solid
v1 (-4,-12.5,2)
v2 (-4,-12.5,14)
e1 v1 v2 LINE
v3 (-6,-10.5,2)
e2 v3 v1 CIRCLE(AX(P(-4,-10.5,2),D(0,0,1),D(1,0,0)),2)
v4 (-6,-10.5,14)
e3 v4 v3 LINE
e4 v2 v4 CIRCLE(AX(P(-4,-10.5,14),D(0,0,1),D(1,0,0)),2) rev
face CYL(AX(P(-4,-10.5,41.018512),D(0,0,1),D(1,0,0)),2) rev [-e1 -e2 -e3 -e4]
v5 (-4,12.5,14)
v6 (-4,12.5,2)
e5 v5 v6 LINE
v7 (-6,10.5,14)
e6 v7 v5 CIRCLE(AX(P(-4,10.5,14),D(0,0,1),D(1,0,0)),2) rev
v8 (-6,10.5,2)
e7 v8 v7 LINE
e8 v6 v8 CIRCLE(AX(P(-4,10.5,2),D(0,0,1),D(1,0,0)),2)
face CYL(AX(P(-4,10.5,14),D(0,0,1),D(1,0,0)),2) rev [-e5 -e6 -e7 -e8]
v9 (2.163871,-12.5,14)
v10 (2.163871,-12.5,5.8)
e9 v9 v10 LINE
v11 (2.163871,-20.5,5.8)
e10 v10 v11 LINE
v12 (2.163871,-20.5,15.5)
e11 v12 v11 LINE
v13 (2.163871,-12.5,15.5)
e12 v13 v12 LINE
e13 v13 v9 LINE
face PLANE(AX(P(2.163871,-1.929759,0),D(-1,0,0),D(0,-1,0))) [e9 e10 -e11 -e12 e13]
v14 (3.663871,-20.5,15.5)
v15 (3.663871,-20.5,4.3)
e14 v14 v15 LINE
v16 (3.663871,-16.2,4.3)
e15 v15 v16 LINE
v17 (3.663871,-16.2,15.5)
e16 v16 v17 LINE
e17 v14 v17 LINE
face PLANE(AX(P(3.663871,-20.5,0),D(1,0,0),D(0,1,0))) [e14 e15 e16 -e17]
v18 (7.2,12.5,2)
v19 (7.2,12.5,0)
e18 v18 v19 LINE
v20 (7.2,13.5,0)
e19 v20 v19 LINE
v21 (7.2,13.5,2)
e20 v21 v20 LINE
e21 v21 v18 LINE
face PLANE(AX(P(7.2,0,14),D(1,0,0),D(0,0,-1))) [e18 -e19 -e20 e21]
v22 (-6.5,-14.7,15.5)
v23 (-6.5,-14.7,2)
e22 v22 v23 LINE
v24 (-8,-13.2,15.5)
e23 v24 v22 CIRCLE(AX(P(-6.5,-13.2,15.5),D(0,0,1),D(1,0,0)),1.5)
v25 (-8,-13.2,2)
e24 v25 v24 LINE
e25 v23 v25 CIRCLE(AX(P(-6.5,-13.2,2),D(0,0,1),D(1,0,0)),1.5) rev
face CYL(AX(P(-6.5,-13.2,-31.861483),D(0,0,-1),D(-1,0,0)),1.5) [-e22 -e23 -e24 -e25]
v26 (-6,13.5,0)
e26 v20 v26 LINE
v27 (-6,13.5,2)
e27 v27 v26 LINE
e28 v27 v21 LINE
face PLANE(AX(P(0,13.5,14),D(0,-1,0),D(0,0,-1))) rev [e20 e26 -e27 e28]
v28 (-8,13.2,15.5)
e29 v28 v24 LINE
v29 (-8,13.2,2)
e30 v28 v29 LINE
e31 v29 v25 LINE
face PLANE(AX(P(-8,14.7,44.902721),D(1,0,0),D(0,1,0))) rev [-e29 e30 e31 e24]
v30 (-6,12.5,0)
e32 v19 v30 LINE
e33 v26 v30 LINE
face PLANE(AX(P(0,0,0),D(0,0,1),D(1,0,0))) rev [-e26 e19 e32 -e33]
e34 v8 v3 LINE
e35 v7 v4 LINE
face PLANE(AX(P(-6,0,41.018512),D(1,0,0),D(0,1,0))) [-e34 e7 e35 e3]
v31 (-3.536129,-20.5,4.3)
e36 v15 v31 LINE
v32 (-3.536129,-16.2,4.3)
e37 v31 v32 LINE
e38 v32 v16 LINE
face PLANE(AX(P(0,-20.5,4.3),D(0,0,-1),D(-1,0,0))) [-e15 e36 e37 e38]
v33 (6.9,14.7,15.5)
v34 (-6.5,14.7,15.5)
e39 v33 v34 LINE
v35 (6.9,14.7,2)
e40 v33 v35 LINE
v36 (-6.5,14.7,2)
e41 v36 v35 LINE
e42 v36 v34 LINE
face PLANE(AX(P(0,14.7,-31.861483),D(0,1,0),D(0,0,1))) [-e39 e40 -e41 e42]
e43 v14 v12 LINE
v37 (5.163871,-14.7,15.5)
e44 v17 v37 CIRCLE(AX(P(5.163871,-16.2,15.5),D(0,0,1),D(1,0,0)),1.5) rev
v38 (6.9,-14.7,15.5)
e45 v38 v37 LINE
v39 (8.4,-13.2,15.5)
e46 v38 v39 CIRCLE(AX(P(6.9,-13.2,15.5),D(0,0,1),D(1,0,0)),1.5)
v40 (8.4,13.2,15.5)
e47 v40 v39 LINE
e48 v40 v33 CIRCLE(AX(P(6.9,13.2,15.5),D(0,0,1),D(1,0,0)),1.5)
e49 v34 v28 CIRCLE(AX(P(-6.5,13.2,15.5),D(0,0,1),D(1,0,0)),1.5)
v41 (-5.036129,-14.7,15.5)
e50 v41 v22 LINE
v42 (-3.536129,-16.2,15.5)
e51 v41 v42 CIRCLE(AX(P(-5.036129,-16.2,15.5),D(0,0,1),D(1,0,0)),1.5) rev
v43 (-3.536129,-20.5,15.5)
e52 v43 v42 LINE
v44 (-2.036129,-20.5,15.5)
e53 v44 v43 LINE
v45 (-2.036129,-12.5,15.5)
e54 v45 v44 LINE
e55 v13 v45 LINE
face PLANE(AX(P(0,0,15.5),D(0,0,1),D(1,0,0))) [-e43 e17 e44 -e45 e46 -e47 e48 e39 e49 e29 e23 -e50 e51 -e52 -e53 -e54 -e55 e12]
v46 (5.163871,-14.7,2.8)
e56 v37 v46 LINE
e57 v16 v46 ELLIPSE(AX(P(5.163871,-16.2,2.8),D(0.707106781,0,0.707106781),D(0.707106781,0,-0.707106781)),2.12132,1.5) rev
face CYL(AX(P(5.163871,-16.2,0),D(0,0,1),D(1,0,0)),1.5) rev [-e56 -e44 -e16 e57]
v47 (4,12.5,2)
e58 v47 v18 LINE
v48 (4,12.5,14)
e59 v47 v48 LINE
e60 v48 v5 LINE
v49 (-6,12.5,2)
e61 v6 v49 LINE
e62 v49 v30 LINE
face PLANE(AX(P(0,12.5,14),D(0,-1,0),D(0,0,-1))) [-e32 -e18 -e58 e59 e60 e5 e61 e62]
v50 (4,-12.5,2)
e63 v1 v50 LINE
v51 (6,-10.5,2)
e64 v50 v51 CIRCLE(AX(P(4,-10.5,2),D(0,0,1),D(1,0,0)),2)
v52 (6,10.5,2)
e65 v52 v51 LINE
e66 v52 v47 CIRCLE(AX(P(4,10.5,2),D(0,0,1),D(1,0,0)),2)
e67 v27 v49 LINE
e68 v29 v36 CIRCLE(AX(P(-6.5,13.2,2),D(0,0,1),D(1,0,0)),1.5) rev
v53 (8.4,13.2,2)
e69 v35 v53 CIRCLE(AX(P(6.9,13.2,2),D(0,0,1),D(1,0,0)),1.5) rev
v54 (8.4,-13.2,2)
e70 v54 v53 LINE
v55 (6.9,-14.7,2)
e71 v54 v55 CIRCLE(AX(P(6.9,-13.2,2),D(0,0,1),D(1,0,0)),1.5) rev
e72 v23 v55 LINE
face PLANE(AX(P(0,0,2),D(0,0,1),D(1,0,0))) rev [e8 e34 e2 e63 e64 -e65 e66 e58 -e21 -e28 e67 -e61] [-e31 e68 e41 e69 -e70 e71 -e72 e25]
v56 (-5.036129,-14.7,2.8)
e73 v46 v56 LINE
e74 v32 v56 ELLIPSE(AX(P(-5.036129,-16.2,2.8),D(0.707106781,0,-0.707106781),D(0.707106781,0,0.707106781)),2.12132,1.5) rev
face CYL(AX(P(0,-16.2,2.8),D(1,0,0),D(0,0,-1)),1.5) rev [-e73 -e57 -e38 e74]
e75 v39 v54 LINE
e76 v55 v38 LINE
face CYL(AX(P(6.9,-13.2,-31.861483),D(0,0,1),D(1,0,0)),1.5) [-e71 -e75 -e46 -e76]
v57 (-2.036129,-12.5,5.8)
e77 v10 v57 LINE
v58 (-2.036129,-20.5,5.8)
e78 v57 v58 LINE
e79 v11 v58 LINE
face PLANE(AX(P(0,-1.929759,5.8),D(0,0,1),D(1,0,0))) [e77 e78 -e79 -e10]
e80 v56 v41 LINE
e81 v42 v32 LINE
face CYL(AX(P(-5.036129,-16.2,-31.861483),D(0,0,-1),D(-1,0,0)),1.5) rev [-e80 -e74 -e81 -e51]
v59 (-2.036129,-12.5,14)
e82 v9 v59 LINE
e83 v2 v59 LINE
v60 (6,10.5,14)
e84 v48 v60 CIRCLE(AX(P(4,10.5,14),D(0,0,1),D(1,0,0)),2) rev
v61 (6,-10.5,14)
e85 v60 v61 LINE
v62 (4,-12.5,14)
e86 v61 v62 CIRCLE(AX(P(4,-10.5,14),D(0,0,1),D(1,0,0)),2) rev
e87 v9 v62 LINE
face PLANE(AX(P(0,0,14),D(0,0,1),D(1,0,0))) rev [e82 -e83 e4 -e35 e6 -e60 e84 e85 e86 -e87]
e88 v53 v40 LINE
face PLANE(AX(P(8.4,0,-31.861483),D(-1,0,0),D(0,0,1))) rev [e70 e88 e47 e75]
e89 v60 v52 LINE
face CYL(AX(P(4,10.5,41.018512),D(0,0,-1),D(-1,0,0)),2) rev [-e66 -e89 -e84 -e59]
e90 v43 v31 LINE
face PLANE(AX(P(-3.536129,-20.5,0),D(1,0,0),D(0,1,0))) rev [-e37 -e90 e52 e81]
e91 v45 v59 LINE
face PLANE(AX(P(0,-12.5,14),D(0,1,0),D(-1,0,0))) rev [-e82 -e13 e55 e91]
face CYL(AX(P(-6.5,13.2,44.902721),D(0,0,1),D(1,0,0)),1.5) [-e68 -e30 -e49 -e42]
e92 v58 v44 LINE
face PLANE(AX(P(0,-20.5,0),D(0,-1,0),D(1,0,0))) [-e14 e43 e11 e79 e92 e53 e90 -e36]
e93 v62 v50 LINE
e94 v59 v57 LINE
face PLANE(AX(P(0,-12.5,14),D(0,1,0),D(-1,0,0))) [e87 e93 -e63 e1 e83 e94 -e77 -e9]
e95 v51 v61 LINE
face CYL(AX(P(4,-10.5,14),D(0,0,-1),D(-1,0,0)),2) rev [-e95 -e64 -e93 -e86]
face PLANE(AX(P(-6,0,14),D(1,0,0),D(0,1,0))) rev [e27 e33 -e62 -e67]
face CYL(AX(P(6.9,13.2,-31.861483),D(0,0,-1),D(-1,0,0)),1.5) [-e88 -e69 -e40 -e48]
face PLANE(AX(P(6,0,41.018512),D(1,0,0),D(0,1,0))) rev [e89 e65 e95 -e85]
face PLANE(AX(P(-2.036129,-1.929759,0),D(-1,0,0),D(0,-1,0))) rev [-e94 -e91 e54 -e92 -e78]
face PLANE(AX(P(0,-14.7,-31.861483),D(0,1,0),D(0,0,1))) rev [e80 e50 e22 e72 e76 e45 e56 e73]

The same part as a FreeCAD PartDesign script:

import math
import FreeCAD as App
import Part
import Sketcher


def edges_at(feature, points):
    """Names of the edges that pass closest to the given points."""
    edges = feature.Shape.Edges
    near = lambda p: min(range(len(edges)), key=lambda i: edges[i].distToShape(Part.Vertex(*p))[0])
    return sorted({f"Edge{near(p) + 1}" for p in points})

doc = App.newDocument("Part")
params = doc.addObject("Spreadsheet::Sheet", "Params")
for row, (alias, value) in enumerate([
    ("sketch1_height", "1 mm"),
    ("sketch1_width", "13.2 mm"),
    ("pad1_length", "14 mm"),
    ("sketch2_height", "1 mm"),
    ("sketch2_width", "13.2 mm"),
    ("pad2_length", "14 mm"),
    ("sketch3_width", "1 mm"),
    ("sketch3_height", "27 mm"),
    ("sketch3_height2", "25 mm"),
    ("sketch3_width2", "1.2 mm"),
    ("pad3_length", "12 mm"),
    ("sketch4_height", "27 mm"),
    ("sketch4_width", "14.2 mm"),
    ("pad4_length", "1.5 mm"),
    ("sketch5_width", "4.2 mm"),
    ("sketch5_height", "9.7 mm"),
    ("pocket1_length", "1 mm"),
    ("sketch6_width", "1.5 mm"),
    ("sketch6_width2", "4.2 mm"),
    ("sketch6_height", "9.7 mm"),
    ("sketch6_height2", "11.2 mm"),
    ("pad5_length", "7 mm"),
    ("fillet_radius", "2 mm"),
    ("sketch7_height", "1 mm"),
    ("sketch7_width", "13.2 mm"),
    ("pocket2_length", "2 mm"),
    ("fillet2_radius", "1 mm"),
    ("sketch8_radius", "1 mm"),
    ("sketch8_height", "27 mm"),
    ("sketch8_width", "16.8 mm"),
    ("sketch8_width2", "14.2 mm"),
    ("sketch8_height2", "29.4 mm"),
    ("pad6_length", "13.5 mm"),
    ("pad7_length", "2.3 mm"),
    ("fillet3_radius", "1.5 mm"),
    ("sketch10_width", "0.4 mm"),
    ("sketch10_height", "29.4 mm"),
    ("pocket3_length", "13.5 mm"),
    ("fillet4_radius", "1.5 mm"),
], start=1):
    params.set(f"A{row}", alias)
    params.set(f"B{row}", "=" + value)
    params.setAlias(f"B{row}", alias)

body = doc.addObject("PartDesign::Body", "Body")

sketch1 = doc.addObject("Sketcher::SketchObject", "Sketch")
body.addObject(sketch1)
sketch1.AttachmentSupport = (doc.XY_Plane, [""])
sketch1.MapMode = "FlatFace"
sketch1.addGeometry(Part.LineSegment(App.Vector(7.2, 13.5, 0), App.Vector(-6, 13.5, 0)), False)
sketch1.addGeometry(Part.LineSegment(App.Vector(-6, 13.5, 0), App.Vector(-6, 12.5, 0)), False)
sketch1.addGeometry(Part.LineSegment(App.Vector(-6, 12.5, 0), App.Vector(7.2, 12.5, 0)), False)
sketch1.addGeometry(Part.LineSegment(App.Vector(7.2, 12.5, 0), App.Vector(7.2, 13.5, 0)), False)
sketch1.addConstraint(Sketcher.Constraint("Coincident", 0, 2, 1, 1))
sketch1.addConstraint(Sketcher.Constraint("Coincident", 1, 2, 2, 1))
sketch1.addConstraint(Sketcher.Constraint("Coincident", 2, 2, 3, 1))
sketch1.addConstraint(Sketcher.Constraint("Coincident", 3, 2, 0, 1))
sketch1.addConstraint(Sketcher.Constraint("Horizontal", 0))
sketch1.addConstraint(Sketcher.Constraint("Vertical", 1))
sketch1.addConstraint(Sketcher.Constraint("Horizontal", 2))
sketch1.addConstraint(Sketcher.Constraint("Vertical", 3))
sketch1.addConstraint(Sketcher.Constraint("DistanceY", 1, 2, 1, 1, 1.0))
sketch1.addConstraint(Sketcher.Constraint("DistanceX", 0, 2, 0, 1, 13.2))
sketch1.addConstraint(Sketcher.Constraint("DistanceX", 0, 2, -1, 1, 6.0))
sketch1.addConstraint(Sketcher.Constraint("DistanceY", -1, 1, 0, 2, 13.5))
sketch1.setExpression("Constraints[8]", "Params.sketch1_height")
sketch1.setExpression("Constraints[9]", "Params.sketch1_width")
pad1 = doc.addObject("PartDesign::Pad", "Pad")
body.addObject(pad1)
pad1.Profile = sketch1
pad1.setExpression("Length", "Params.pad1_length")
body2 = doc.addObject("PartDesign::Body", "Body001")

sketch2 = doc.addObject("Sketcher::SketchObject", "Sketch001")
body2.addObject(sketch2)
sketch2.AttachmentSupport = (doc.getObject("XY_Plane001"), [""])
sketch2.MapMode = "FlatFace"
sketch2.addGeometry(Part.LineSegment(App.Vector(-6, -12.5, 0), App.Vector(-6, -13.5, 0)), False)
sketch2.addGeometry(Part.LineSegment(App.Vector(-6, -13.5, 0), App.Vector(7.2, -13.5, 0)), False)
sketch2.addGeometry(Part.LineSegment(App.Vector(7.2, -13.5, 0), App.Vector(7.2, -12.5, 0)), False)
sketch2.addGeometry(Part.LineSegment(App.Vector(7.2, -12.5, 0), App.Vector(-6, -12.5, 0)), False)
sketch2.addConstraint(Sketcher.Constraint("Coincident", 0, 2, 1, 1))
sketch2.addConstraint(Sketcher.Constraint("Coincident", 1, 2, 2, 1))
sketch2.addConstraint(Sketcher.Constraint("Coincident", 2, 2, 3, 1))
sketch2.addConstraint(Sketcher.Constraint("Coincident", 3, 2, 0, 1))
sketch2.addConstraint(Sketcher.Constraint("Vertical", 0))
sketch2.addConstraint(Sketcher.Constraint("Horizontal", 1))
sketch2.addConstraint(Sketcher.Constraint("Vertical", 2))
sketch2.addConstraint(Sketcher.Constraint("Horizontal", 3))
sketch2.addConstraint(Sketcher.Constraint("DistanceY", 0, 2, 0, 1, 1.0))
sketch2.addConstraint(Sketcher.Constraint("DistanceX", 1, 1, 1, 2, 13.2))
sketch2.addConstraint(Sketcher.Constraint("DistanceX", 0, 2, -1, 1, 6.0))
sketch2.addConstraint(Sketcher.Constraint("DistanceY", 0, 2, -1, 1, 13.5))
sketch2.setExpression("Constraints[8]", "Params.sketch2_height")
sketch2.setExpression("Constraints[9]", "Params.sketch2_width")
pad2 = doc.addObject("PartDesign::Pad", "Pad001")
body2.addObject(pad2)
pad2.Profile = sketch2
pad2.setExpression("Length", "Params.pad2_length")
body.AllowCompound = True
doc.recompute()

boolean = doc.addObject("PartDesign::Boolean", "Boolean")
body.addObject(boolean)
boolean.Type = "Fuse"
boolean.addObjects([body2])

sketch3 = doc.addObject("Sketcher::SketchObject", "Sketch002")
body.addObject(sketch3)
sketch3.AttachmentSupport = (doc.XY_Plane, [""])
sketch3.MapMode = "FlatFace"
sketch3.AttachmentOffset = App.Placement(App.Vector(0, 0, 2), App.Rotation())
sketch3.addGeometry(Part.LineSegment(App.Vector(-6, 13.5, 0), App.Vector(-7, 13.5, 0)), False)
sketch3.addGeometry(Part.LineSegment(App.Vector(-7, 13.5, 0), App.Vector(-7, -13.5, 0)), False)
sketch3.addGeometry(Part.LineSegment(App.Vector(-7, -13.5, 0), App.Vector(-6, -13.5, 0)), False)
sketch3.addGeometry(Part.LineSegment(App.Vector(-6, -13.5, 0), App.Vector(-6, 13.5, 0)), False)
sketch3.addGeometry(Part.LineSegment(App.Vector(6, 12.5, 0), App.Vector(6, -12.5, 0)), False)
sketch3.addGeometry(Part.LineSegment(App.Vector(6, -12.5, 0), App.Vector(7.2, -12.5, 0)), False)
sketch3.addGeometry(Part.LineSegment(App.Vector(7.2, -12.5, 0), App.Vector(7.2, 12.5, 0)), False)
sketch3.addGeometry(Part.LineSegment(App.Vector(7.2, 12.5, 0), App.Vector(6, 12.5, 0)), False)
sketch3.addConstraint(Sketcher.Constraint("Coincident", 0, 2, 1, 1))
sketch3.addConstraint(Sketcher.Constraint("Coincident", 1, 2, 2, 1))
sketch3.addConstraint(Sketcher.Constraint("Coincident", 2, 2, 3, 1))
sketch3.addConstraint(Sketcher.Constraint("Coincident", 3, 2, 0, 1))
sketch3.addConstraint(Sketcher.Constraint("Coincident", 4, 2, 5, 1))
sketch3.addConstraint(Sketcher.Constraint("Coincident", 5, 2, 6, 1))
sketch3.addConstraint(Sketcher.Constraint("Coincident", 6, 2, 7, 1))
sketch3.addConstraint(Sketcher.Constraint("Coincident", 7, 2, 4, 1))
sketch3.addConstraint(Sketcher.Constraint("Horizontal", 0))
sketch3.addConstraint(Sketcher.Constraint("Vertical", 1))
sketch3.addConstraint(Sketcher.Constraint("Horizontal", 2))
sketch3.addConstraint(Sketcher.Constraint("Vertical", 3))
sketch3.addConstraint(Sketcher.Constraint("Vertical", 4))
sketch3.addConstraint(Sketcher.Constraint("Horizontal", 5))
sketch3.addConstraint(Sketcher.Constraint("Vertical", 6))
sketch3.addConstraint(Sketcher.Constraint("Horizontal", 7))
sketch3.addConstraint(Sketcher.Constraint("DistanceX", 0, 2, 0, 1, 1.0))
sketch3.addConstraint(Sketcher.Constraint("DistanceY", 1, 2, 1, 1, 27.0))
sketch3.addConstraint(Sketcher.Constraint("DistanceY", 4, 2, 4, 1, 25.0))
sketch3.addConstraint(Sketcher.Constraint("DistanceX", 5, 1, 5, 2, 1.2))
sketch3.addConstraint(Sketcher.Constraint("DistanceX", 0, 2, -1, 1, 7.0))
sketch3.addConstraint(Sketcher.Constraint("DistanceX", -1, 1, 4, 2, 6.0))
sketch3.addConstraint(Sketcher.Constraint("DistanceY", 2, 2, 4, 2, 1.0))
sketch3.addConstraint(Sketcher.Constraint("DistanceY", -1, 1, 0, 2, 13.5))
sketch3.setExpression("Constraints[16]", "Params.sketch3_width")
sketch3.setExpression("Constraints[17]", "Params.sketch3_height")
sketch3.setExpression("Constraints[18]", "Params.sketch3_height2")
sketch3.setExpression("Constraints[19]", "Params.sketch3_width2")
pad3 = doc.addObject("PartDesign::Pad", "Pad002")
body.addObject(pad3)
pad3.Profile = sketch3
pad3.setExpression("Length", "Params.pad3_length")

sketch4 = doc.addObject("Sketcher::SketchObject", "Sketch003")
body.addObject(sketch4)
sketch4.AttachmentSupport = (doc.XY_Plane, [""])
sketch4.MapMode = "FlatFace"
sketch4.AttachmentOffset = App.Placement(App.Vector(0, 0, 14), App.Rotation())
sketch4.addGeometry(Part.LineSegment(App.Vector(-7, 14, 0), App.Vector(-7, -14, 0)), False)
sketch4.addGeometry(Part.LineSegment(App.Vector(-7, -14, 0), App.Vector(7, -14, 0)), False)
sketch4.addGeometry(Part.LineSegment(App.Vector(7, -14, 0), App.Vector(7, 14, 0)), False)
sketch4.addGeometry(Part.LineSegment(App.Vector(7, 14, 0), App.Vector(-7, 14, 0)), False)
sketch4.addConstraint(Sketcher.Constraint("Coincident", 0, 2, 1, 1))
sketch4.addConstraint(Sketcher.Constraint("Coincident", 1, 2, 2, 1))
sketch4.addConstraint(Sketcher.Constraint("Coincident", 2, 2, 3, 1))
sketch4.addConstraint(Sketcher.Constraint("Coincident", 3, 2, 0, 1))
sketch4.addConstraint(Sketcher.Constraint("Vertical", 0))
sketch4.addConstraint(Sketcher.Constraint("Horizontal", 1))
sketch4.addConstraint(Sketcher.Constraint("Vertical", 2))
sketch4.addConstraint(Sketcher.Constraint("Horizontal", 3))
sketch4.addConstraint(Sketcher.Constraint("DistanceY", 0, 2, 0, 1, 27.0))
sketch4.addConstraint(Sketcher.Constraint("DistanceX", 1, 1, 1, 2, 14.2))
sketch4.addConstraint(Sketcher.Constraint("DistanceX", 0, 2, -1, 1, 7.0))
sketch4.addConstraint(Sketcher.Constraint("DistanceY", 0, 2, -1, 1, 13.5))
sketch4.setExpression("Constraints[8]", "Params.sketch4_height")
sketch4.setExpression("Constraints[9]", "Params.sketch4_width")
pad4 = doc.addObject("PartDesign::Pad", "Pad003")
body.addObject(pad4)
pad4.Profile = sketch4
pad4.setExpression("Length", "Params.pad4_length")

sketch5 = doc.addObject("Sketcher::SketchObject", "Sketch004")
body.addObject(sketch5)
sketch5.AttachmentSupport = (doc.XZ_Plane, [""])
sketch5.MapMode = "FlatFace"
sketch5.AttachmentOffset = App.Placement(App.Vector(0, 0, 13.5), App.Rotation())
sketch5.addGeometry(Part.LineSegment(App.Vector(-2, 5.8, 0), App.Vector(2.2, 5.8, 0)), False)
sketch5.addGeometry(Part.LineSegment(App.Vector(2.2, 5.8, 0), App.Vector(2.2, 15.5, 0)), False)
sketch5.addGeometry(Part.LineSegment(App.Vector(2.2, 15.5, 0), App.Vector(-2, 15.5, 0)), False)
sketch5.addGeometry(Part.LineSegment(App.Vector(-2, 15.5, 0), App.Vector(-2, 5.8, 0)), False)
sketch5.addConstraint(Sketcher.Constraint("Coincident", 0, 2, 1, 1))
sketch5.addConstraint(Sketcher.Constraint("Coincident", 1, 2, 2, 1))
sketch5.addConstraint(Sketcher.Constraint("Coincident", 2, 2, 3, 1))
sketch5.addConstraint(Sketcher.Constraint("Coincident", 3, 2, 0, 1))
sketch5.addConstraint(Sketcher.Constraint("Horizontal", 0))
sketch5.addConstraint(Sketcher.Constraint("Vertical", 1))
sketch5.addConstraint(Sketcher.Constraint("Horizontal", 2))
sketch5.addConstraint(Sketcher.Constraint("Vertical", 3))
sketch5.addConstraint(Sketcher.Constraint("DistanceX", 0, 1, 0, 2, 4.2))
sketch5.addConstraint(Sketcher.Constraint("DistanceY", 1, 1, 1, 2, 9.7))
sketch5.addConstraint(Sketcher.Constraint("DistanceY", -1, 1, 0, 2, 5.8))
sketch5.addConstraint(Sketcher.Constraint("DistanceX", -1, 1, 0, 2, 2.163871))
sketch5.setExpression("Constraints[8]", "Params.sketch5_width")
sketch5.setExpression("Constraints[9]", "Params.sketch5_height")
pocket1 = doc.addObject("PartDesign::Pocket", "Pocket")
body.addObject(pocket1)
pocket1.Profile = sketch5
pocket1.setExpression("Length", "Params.pocket1_length")

sketch6 = doc.addObject("Sketcher::SketchObject", "Sketch005")
body.addObject(sketch6)
sketch6.AttachmentSupport = (doc.XZ_Plane, [""])
sketch6.MapMode = "FlatFace"
sketch6.AttachmentOffset = App.Placement(App.Vector(0, 0, 13.5), App.Rotation())
sketch6.addGeometry(Part.LineSegment(App.Vector(3.7, 15.5, 0), App.Vector(2.2, 15.5, 0)), False)
sketch6.addGeometry(Part.LineSegment(App.Vector(2.2, 15.5, 0), App.Vector(2.2, 5.8, 0)), False)
sketch6.addGeometry(Part.LineSegment(App.Vector(2.2, 5.8, 0), App.Vector(-2, 5.8, 0)), False)
sketch6.addGeometry(Part.LineSegment(App.Vector(-2, 5.8, 0), App.Vector(-2, 15.5, 0)), False)
sketch6.addGeometry(Part.LineSegment(App.Vector(-2, 15.5, 0), App.Vector(-3.5, 15.5, 0)), False)
sketch6.addGeometry(Part.LineSegment(App.Vector(-3.5, 15.5, 0), App.Vector(-3.5, 4.3, 0)), False)
sketch6.addGeometry(Part.LineSegment(App.Vector(-3.5, 4.3, 0), App.Vector(3.7, 4.3, 0)), False)
sketch6.addGeometry(Part.LineSegment(App.Vector(3.7, 4.3, 0), App.Vector(3.7, 15.5, 0)), False)
sketch6.addConstraint(Sketcher.Constraint("Coincident", 0, 2, 1, 1))
sketch6.addConstraint(Sketcher.Constraint("Coincident", 1, 2, 2, 1))
sketch6.addConstraint(Sketcher.Constraint("Coincident", 2, 2, 3, 1))
sketch6.addConstraint(Sketcher.Constraint("Coincident", 3, 2, 4, 1))
sketch6.addConstraint(Sketcher.Constraint("Coincident", 4, 2, 5, 1))
sketch6.addConstraint(Sketcher.Constraint("Coincident", 5, 2, 6, 1))
sketch6.addConstraint(Sketcher.Constraint("Coincident", 6, 2, 7, 1))
sketch6.addConstraint(Sketcher.Constraint("Coincident", 7, 2, 0, 1))
sketch6.addConstraint(Sketcher.Constraint("Horizontal", 0))
sketch6.addConstraint(Sketcher.Constraint("Vertical", 1))
sketch6.addConstraint(Sketcher.Constraint("Horizontal", 2))
sketch6.addConstraint(Sketcher.Constraint("Vertical", 3))
sketch6.addConstraint(Sketcher.Constraint("Horizontal", 4))
sketch6.addConstraint(Sketcher.Constraint("Vertical", 5))
sketch6.addConstraint(Sketcher.Constraint("Horizontal", 6))
sketch6.addConstraint(Sketcher.Constraint("Vertical", 7))
sketch6.addConstraint(Sketcher.Constraint("Horizontal", 0, 2, 3, 2))
sketch6.addConstraint(Sketcher.Constraint("Equal", 0, 4))
sketch6.addConstraint(Sketcher.Constraint("DistanceX", 0, 2, 0, 1, 1.5))
sketch6.addConstraint(Sketcher.Constraint("DistanceX", 2, 2, 2, 1, 4.2))
sketch6.addConstraint(Sketcher.Constraint("DistanceY", 1, 2, 1, 1, 9.7))
sketch6.addConstraint(Sketcher.Constraint("DistanceY", 5, 2, 5, 1, 11.2))
sketch6.addConstraint(Sketcher.Constraint("DistanceY", -1, 1, 0, 2, 15.5))
sketch6.addConstraint(Sketcher.Constraint("DistanceX", -1, 1, 0, 2, 2.163871))
sketch6.setExpression("Constraints[18]", "Params.sketch6_width")
sketch6.setExpression("Constraints[19]", "Params.sketch6_width2")
sketch6.setExpression("Constraints[20]", "Params.sketch6_height")
sketch6.setExpression("Constraints[21]", "Params.sketch6_height2")
pad5 = doc.addObject("PartDesign::Pad", "Pad004")
body.addObject(pad5)
pad5.Profile = sketch6
pad5.setExpression("Length", "Params.pad5_length")
doc.recompute()

fillet = doc.addObject("PartDesign::Fillet", "Fillet")
body.addObject(fillet)
fillet.Base = (pad5, edges_at(pad5, [
    (-6, -12.5, 8),
    (6, -12.5, 8),
    (6, 12.5, 8),
    (-6, 12.5, 8),
]))
fillet.setExpression("Radius", "Params.fillet_radius")

sketch7 = doc.addObject("Sketcher::SketchObject", "Sketch006")
body.addObject(sketch7)
sketch7.AttachmentSupport = (doc.XY_Plane, [""])
sketch7.MapMode = "FlatFace"
sketch7.AttachmentOffset = App.Placement(App.Vector(0, 0, 2), App.Rotation())
sketch7.addGeometry(Part.LineSegment(App.Vector(7.2, -12.5, 0), App.Vector(7.2, -13.5, 0)), False)
sketch7.addGeometry(Part.LineSegment(App.Vector(7.2, -13.5, 0), App.Vector(-6, -13.5, 0)), False)
sketch7.addGeometry(Part.LineSegment(App.Vector(-6, -13.5, 0), App.Vector(-6, -12.5, 0)), False)
sketch7.addGeometry(Part.LineSegment(App.Vector(-6, -12.5, 0), App.Vector(7.2, -12.5, 0)), False)
sketch7.addConstraint(Sketcher.Constraint("Coincident", 0, 2, 1, 1))
sketch7.addConstraint(Sketcher.Constraint("Coincident", 1, 2, 2, 1))
sketch7.addConstraint(Sketcher.Constraint("Coincident", 2, 2, 3, 1))
sketch7.addConstraint(Sketcher.Constraint("Coincident", 3, 2, 0, 1))
sketch7.addConstraint(Sketcher.Constraint("Vertical", 0))
sketch7.addConstraint(Sketcher.Constraint("Horizontal", 1))
sketch7.addConstraint(Sketcher.Constraint("Vertical", 2))
sketch7.addConstraint(Sketcher.Constraint("Horizontal", 3))
sketch7.addConstraint(Sketcher.Constraint("DistanceY", 0, 2, 0, 1, 1.0))
sketch7.addConstraint(Sketcher.Constraint("DistanceX", 1, 2, 1, 1, 13.2))
sketch7.addConstraint(Sketcher.Constraint("DistanceX", 1, 2, -1, 1, 6.0))
sketch7.addConstraint(Sketcher.Constraint("DistanceY", 0, 2, -1, 1, 13.5))
sketch7.setExpression("Constraints[8]", "Params.sketch7_height")
sketch7.setExpression("Constraints[9]", "Params.sketch7_width")
pocket2 = doc.addObject("PartDesign::Pocket", "Pocket001")
body.addObject(pocket2)
pocket2.Profile = sketch7
pocket2.setExpression("Length", "Params.pocket2_length")
doc.recompute()

fillet2 = doc.addObject("PartDesign::Fillet", "Fillet001")
body.addObject(fillet2)
fillet2.Base = (pocket2, edges_at(pocket2, [(3.664, -13.5, 9.9), (0.064, -13.5, 4.3), (-3.536, -13.5, 9.9)]))
fillet2.setExpression("Radius", "Params.fillet2_radius")

sketch8 = doc.addObject("Sketcher::SketchObject", "Sketch007")
body.addObject(sketch8)
sketch8.AttachmentSupport = (doc.XY_Plane, [""])
sketch8.MapMode = "FlatFace"
sketch8.AttachmentOffset = App.Placement(App.Vector(0, 0, 2), App.Rotation())
sketch8.addGeometry(Part.LineSegment(App.Vector(8.4, -14.7, 0), App.Vector(8.4, 14.7, 0)), False)
sketch8.addGeometry(Part.LineSegment(App.Vector(8.4, 14.7, 0), App.Vector(-8.4, 14.7, 0)), False)
sketch8.addGeometry(Part.LineSegment(App.Vector(-8.4, 14.7, 0), App.Vector(-8.4, -14.7, 0)), False)
sketch8.addGeometry(Part.LineSegment(App.Vector(-8.4, -14.7, 0), App.Vector(-3.54, -14.7, 0)), False)
sketch8.addGeometry(Part.LineSegment(App.Vector(-3.54, -14.7, 0), App.Vector(-3.54, -14.5, 0)), False)
sketch8.addGeometry(Part.ArcOfCircle(Part.Circle(App.Vector(-4.54, -14.5, 0), App.Vector(0, 0, 1), 1), math.radians(0), math.radians(90)), False)
sketch8.addGeometry(Part.LineSegment(App.Vector(-4.54, -13.5, 0), App.Vector(-7, -13.5, 0)), False)
sketch8.addGeometry(Part.LineSegment(App.Vector(-7, -13.5, 0), App.Vector(-7, 13.5, 0)), False)
sketch8.addGeometry(Part.LineSegment(App.Vector(-7, 13.5, 0), App.Vector(7.2, 13.5, 0)), False)
sketch8.addGeometry(Part.LineSegment(App.Vector(7.2, 13.5, 0), App.Vector(7.2, -13.5, 0)), False)
sketch8.addGeometry(Part.LineSegment(App.Vector(7.2, -13.5, 0), App.Vector(4.66, -13.5, 0)), False)
sketch8.addGeometry(Part.ArcOfCircle(Part.Circle(App.Vector(4.66, -14.5, 0), App.Vector(0, 0, 1), 1), math.radians(90), math.radians(180)), False)
sketch8.addGeometry(Part.LineSegment(App.Vector(3.66, -14.5, 0), App.Vector(3.66, -14.7, 0)), False)
sketch8.addGeometry(Part.LineSegment(App.Vector(3.66, -14.7, 0), App.Vector(8.4, -14.7, 0)), False)
sketch8.addConstraint(Sketcher.Constraint("Coincident", 0, 2, 1, 1))
sketch8.addConstraint(Sketcher.Constraint("Coincident", 1, 2, 2, 1))
sketch8.addConstraint(Sketcher.Constraint("Coincident", 2, 2, 3, 1))
sketch8.addConstraint(Sketcher.Constraint("Coincident", 3, 2, 4, 1))
sketch8.addConstraint(Sketcher.Constraint("Tangent", 4, 2, 5, 1))
sketch8.addConstraint(Sketcher.Constraint("Tangent", 5, 2, 6, 1))
sketch8.addConstraint(Sketcher.Constraint("Coincident", 6, 2, 7, 1))
sketch8.addConstraint(Sketcher.Constraint("Coincident", 7, 2, 8, 1))
sketch8.addConstraint(Sketcher.Constraint("Coincident", 8, 2, 9, 1))
sketch8.addConstraint(Sketcher.Constraint("Coincident", 9, 2, 10, 1))
sketch8.addConstraint(Sketcher.Constraint("Tangent", 10, 2, 11, 1))
sketch8.addConstraint(Sketcher.Constraint("Tangent", 11, 2, 12, 1))
sketch8.addConstraint(Sketcher.Constraint("Coincident", 12, 2, 13, 1))
sketch8.addConstraint(Sketcher.Constraint("Coincident", 13, 2, 0, 1))
sketch8.addConstraint(Sketcher.Constraint("Vertical", 0))
sketch8.addConstraint(Sketcher.Constraint("Horizontal", 1))
sketch8.addConstraint(Sketcher.Constraint("Vertical", 2))
sketch8.addConstraint(Sketcher.Constraint("Horizontal", 3))
sketch8.addConstraint(Sketcher.Constraint("Vertical", 4))
sketch8.addConstraint(Sketcher.Constraint("Horizontal", 6))
sketch8.addConstraint(Sketcher.Constraint("Vertical", 7))
sketch8.addConstraint(Sketcher.Constraint("Horizontal", 8))
sketch8.addConstraint(Sketcher.Constraint("Vertical", 9))
sketch8.addConstraint(Sketcher.Constraint("Horizontal", 10))
sketch8.addConstraint(Sketcher.Constraint("Vertical", 12))
sketch8.addConstraint(Sketcher.Constraint("Horizontal", 13))
sketch8.addConstraint(Sketcher.Constraint("Equal", 5, 11))
sketch8.addConstraint(Sketcher.Constraint("Symmetric", 0, 2, 2, 2, -1, 1))
sketch8.addConstraint(Sketcher.Constraint("Horizontal", 5, 3, 11, 3))
sketch8.addConstraint(Sketcher.Constraint("Horizontal", 3, 2, 12, 2))
sketch8.addConstraint(Sketcher.Constraint("Radius", 5, 1.0))
sketch8.addConstraint(Sketcher.Constraint("DistanceY", 7, 1, 7, 2, 27.0))
sketch8.addConstraint(Sketcher.Constraint("DistanceX", 1, 2, 1, 1, 16.8))
sketch8.addConstraint(Sketcher.Constraint("DistanceX", 8, 1, 8, 2, 14.2))
sketch8.addConstraint(Sketcher.Constraint("DistanceY", 0, 1, 0, 2, 29.4))
sketch8.addConstraint(Sketcher.Constraint("DistanceY", 4, 1, 4, 2, 0.2))
sketch8.addConstraint(Sketcher.Constraint("DistanceX", 6, 2, -1, 1, 7.0))
sketch8.addConstraint(Sketcher.Constraint("DistanceX", 5, 3, 11, 3, 9.2))
sketch8.addConstraint(Sketcher.Constraint("DistanceX", 3, 1, 3, 2, 4.863871))
sketch8.setExpression("Constraints[30]", "Params.sketch8_radius")
sketch8.setExpression("Constraints[31]", "Params.sketch8_height")
sketch8.setExpression("Constraints[32]", "Params.sketch8_width")
sketch8.setExpression("Constraints[33]", "Params.sketch8_width2")
sketch8.setExpression("Constraints[34]", "Params.sketch8_height2")
pad6 = doc.addObject("PartDesign::Pad", "Pad005")
body.addObject(pad6)
pad6.Profile = sketch8
pad6.setExpression("Length", "Params.pad6_length")

sketch9 = doc.addObject("Sketcher::SketchObject", "Sketch008")
body.addObject(sketch9)
sketch9.AttachmentSupport = (doc.XY_Plane, [""])
sketch9.MapMode = "FlatFace"
sketch9.AttachmentOffset = App.Placement(App.Vector(0, 0, 2), App.Rotation())
sketch9.addGeometry(Part.LineSegment(App.Vector(5, -14.7, 0), App.Vector(-5.7, -14.7, 0)), False)
sketch9.addGeometry(Part.LineSegment(App.Vector(-5.7, -14.7, 0), App.Vector(-5.7, -12.8, 0)), False)
sketch9.addGeometry(Part.LineSegment(App.Vector(-5.7, -12.8, 0), App.Vector(4.8, -12.8, 0)), False)
sketch9.addGeometry(Part.LineSegment(App.Vector(4.8, -12.8, 0), App.Vector(5, -14.7, 0)), False)
sketch9.addConstraint(Sketcher.Constraint("Coincident", 0, 2, 1, 1))
sketch9.addConstraint(Sketcher.Constraint("Coincident", 1, 2, 2, 1))
sketch9.addConstraint(Sketcher.Constraint("Coincident", 2, 2, 3, 1))
sketch9.addConstraint(Sketcher.Constraint("Coincident", 3, 2, 0, 1))
sketch9.addConstraint(Sketcher.Constraint("Horizontal", 0))
sketch9.addConstraint(Sketcher.Constraint("Vertical", 1))
sketch9.addConstraint(Sketcher.Constraint("Horizontal", 2))
sketch9.addConstraint(Sketcher.Constraint("DistanceY", 0, 2, -1, 1, 14.7))
sketch9.addConstraint(Sketcher.Constraint("DistanceX", -1, 1, 2, 2, 4.797102))
sketch9.addConstraint(Sketcher.Constraint("DistanceX", 0, 2, 0, 1, 10.678458))
sketch9.addConstraint(Sketcher.Constraint("DistanceX", 2, 1, 2, 2, 10.467573))
sketch9.addConstraint(Sketcher.Constraint("DistanceY", 1, 1, 1, 2, 1.860996))
pad7 = doc.addObject("PartDesign::Pad", "Pad006")
body.addObject(pad7)
pad7.Profile = sketch9
pad7.setExpression("Length", "Params.pad7_length")
doc.recompute()

fillet3 = doc.addObject("PartDesign::Fillet", "Fillet002")
body.addObject(fillet3)
fillet3.Base = (pad7, edges_at(pad7, [(3.664, -14.7, 9.9), (-3.536, -14.7, 9.9), (0.064, -14.7, 4.3)]))
fillet3.setExpression("Radius", "Params.fillet3_radius")

sketch10 = doc.addObject("Sketcher::SketchObject", "Sketch009")
body.addObject(sketch10)
sketch10.AttachmentSupport = (doc.XY_Plane, [""])
sketch10.MapMode = "FlatFace"
sketch10.AttachmentOffset = App.Placement(App.Vector(0, 0, 2), App.Rotation())
sketch10.addGeometry(Part.LineSegment(App.Vector(-8, 14.7, 0), App.Vector(-8, -14.7, 0)), False)
sketch10.addGeometry(Part.LineSegment(App.Vector(-8, -14.7, 0), App.Vector(-8.4, -14.7, 0)), False)
sketch10.addGeometry(Part.LineSegment(App.Vector(-8.4, -14.7, 0), App.Vector(-8.4, 14.7, 0)), False)
sketch10.addGeometry(Part.LineSegment(App.Vector(-8.4, 14.7, 0), App.Vector(-8, 14.7, 0)), False)
sketch10.addConstraint(Sketcher.Constraint("Coincident", 0, 2, 1, 1))
sketch10.addConstraint(Sketcher.Constraint("Coincident", 1, 2, 2, 1))
sketch10.addConstraint(Sketcher.Constraint("Coincident", 2, 2, 3, 1))
sketch10.addConstraint(Sketcher.Constraint("Coincident", 3, 2, 0, 1))
sketch10.addConstraint(Sketcher.Constraint("Vertical", 0))
sketch10.addConstraint(Sketcher.Constraint("Horizontal", 1))
sketch10.addConstraint(Sketcher.Constraint("Vertical", 2))
sketch10.addConstraint(Sketcher.Constraint("Horizontal", 3))
sketch10.addConstraint(Sketcher.Constraint("DistanceX", 1, 2, 1, 1, 0.4))
sketch10.addConstraint(Sketcher.Constraint("DistanceY", 0, 2, 0, 1, 29.4))
sketch10.addConstraint(Sketcher.Constraint("DistanceX", 0, 2, -1, 1, 8.0))
sketch10.addConstraint(Sketcher.Constraint("DistanceY", 0, 2, -1, 1, 14.7))
sketch10.setExpression("Constraints[8]", "Params.sketch10_width")
sketch10.setExpression("Constraints[9]", "Params.sketch10_height")
pocket3 = doc.addObject("PartDesign::Pocket", "Pocket002")
body.addObject(pocket3)
pocket3.Profile = sketch10
pocket3.setExpression("Length", "Params.pocket3_length")
pocket3.Reversed = True
doc.recompute()

fillet4 = doc.addObject("PartDesign::Fillet", "Fillet003")
body.addObject(fillet4)
fillet4.Base = (pocket3, edges_at(pocket3, [
    (8.4, 14.7, 8.75),
    (8.4, -14.7, 8.75),
    (-8, 14.7, 8.75),
    (-8, -14.7, 8.75),
]))
fillet4.setExpression("Radius", "Params.fillet4_radius")

doc.recompute()
